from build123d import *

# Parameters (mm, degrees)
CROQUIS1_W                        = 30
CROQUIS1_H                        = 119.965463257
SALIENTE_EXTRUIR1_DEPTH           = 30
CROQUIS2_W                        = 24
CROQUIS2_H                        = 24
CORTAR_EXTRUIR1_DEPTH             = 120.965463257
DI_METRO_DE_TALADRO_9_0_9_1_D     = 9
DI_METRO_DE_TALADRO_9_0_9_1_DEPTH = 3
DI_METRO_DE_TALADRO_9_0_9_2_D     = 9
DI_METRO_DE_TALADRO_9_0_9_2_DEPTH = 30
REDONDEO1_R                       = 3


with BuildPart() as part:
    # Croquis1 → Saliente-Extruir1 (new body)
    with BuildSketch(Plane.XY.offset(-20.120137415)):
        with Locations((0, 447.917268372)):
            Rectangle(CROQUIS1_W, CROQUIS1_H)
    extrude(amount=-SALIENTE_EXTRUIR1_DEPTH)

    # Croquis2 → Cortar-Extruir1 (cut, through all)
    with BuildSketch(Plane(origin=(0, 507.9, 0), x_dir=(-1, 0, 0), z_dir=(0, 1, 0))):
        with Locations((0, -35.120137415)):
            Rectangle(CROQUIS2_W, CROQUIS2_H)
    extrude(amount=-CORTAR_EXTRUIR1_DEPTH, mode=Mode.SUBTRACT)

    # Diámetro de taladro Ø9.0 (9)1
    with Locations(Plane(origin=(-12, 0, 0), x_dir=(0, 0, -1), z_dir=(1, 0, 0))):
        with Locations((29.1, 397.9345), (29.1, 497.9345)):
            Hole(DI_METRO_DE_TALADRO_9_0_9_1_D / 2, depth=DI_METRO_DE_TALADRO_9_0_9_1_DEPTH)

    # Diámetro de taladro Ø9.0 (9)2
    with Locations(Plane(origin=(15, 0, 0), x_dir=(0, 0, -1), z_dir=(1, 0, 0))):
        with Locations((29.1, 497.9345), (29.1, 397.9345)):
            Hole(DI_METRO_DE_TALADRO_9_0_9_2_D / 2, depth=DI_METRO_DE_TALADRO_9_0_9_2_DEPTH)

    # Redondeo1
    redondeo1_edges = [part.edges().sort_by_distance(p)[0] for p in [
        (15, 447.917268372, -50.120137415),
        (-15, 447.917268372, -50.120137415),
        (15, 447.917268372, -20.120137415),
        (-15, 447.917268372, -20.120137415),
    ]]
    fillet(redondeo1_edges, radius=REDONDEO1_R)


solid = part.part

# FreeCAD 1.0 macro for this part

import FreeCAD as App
import Part
import Sketcher
from FreeCAD import Vector
Q = App.Units.Quantity


def edges_at(feature, points):
    """Names of the edges that pass closest to the given points."""
    edges = feature.Shape.Edges
    near = lambda p: min(range(len(edges)), key=lambda i: edges[i].distToShape(Part.Vertex(*p))[0])
    return sorted({f"Edge{near(p) + 1}" for p in points})

doc = App.newDocument("Part")
body = doc.addObject("PartDesign::Body", "Body")

# Sketch on XY plane
sketch1 = doc.addObject("Sketcher::SketchObject", "Sketch")
body.addObject(sketch1)
sketch1.AttachmentSupport = (doc.XY_Plane, [""])
sketch1.MapMode = "FlatFace"
sketch1.AttachmentOffset = App.Placement(Vector(0, 0, -20.120137), App.Rotation())
sketch1.addGeometry(Part.LineSegment(Vector(-15, 507.9, 0), Vector(-15, 387.934537, 0)), False)
sketch1.addGeometry(Part.LineSegment(Vector(-15, 387.934537, 0), Vector(15, 387.934537, 0)), False)
sketch1.addGeometry(Part.LineSegment(Vector(15, 387.934537, 0), Vector(15, 507.9, 0)), False)
sketch1.addGeometry(Part.LineSegment(Vector(15, 507.9, 0), Vector(-15, 507.9, 0)), False)
sketch1.addConstraint(Sketcher.Constraint("Coincident", 0, 2, 1, 1))
sketch1.addConstraint(Sketcher.Constraint("Coincident", 1, 2, 2, 1))
sketch1.addConstraint(Sketcher.Constraint("Coincident", 2, 2, 3, 1))
sketch1.addConstraint(Sketcher.Constraint("Coincident", 3, 2, 0, 1))
sketch1.addConstraint(Sketcher.Constraint("Vertical", 0))
sketch1.addConstraint(Sketcher.Constraint("Horizontal", 1))
sketch1.addConstraint(Sketcher.Constraint("Vertical", 2))
sketch1.addConstraint(Sketcher.Constraint("Horizontal", 3))
sketch1.addConstraint(Sketcher.Constraint("DistanceX", 1, 1, 1, 2, Q("30 mm")))
sketch1.addConstraint(Sketcher.Constraint("DistanceX", 0, 2, -1, 1, Q("15 mm")))
sketch1.addConstraint(Sketcher.Constraint("DistanceY", -1, 1, 2, 2, Q("507.9 mm")))
sketch1.addConstraint(Sketcher.Constraint("DistanceY", 0, 2, 0, 1, Q("119.965463 mm")))
pad1 = doc.addObject("PartDesign::Pad", "Pad")
body.addObject(pad1)
pad1.Profile = sketch1
pad1.Length = 30
pad1.Reversed = True

# Sketch on XZ plane
sketch2 = doc.addObject("Sketcher::SketchObject", "Sketch001")
body.addObject(sketch2)
sketch2.AttachmentSupport = (doc.XZ_Plane, [""])
sketch2.MapMode = "FlatFace"
sketch2.AttachmentOffset = App.Placement(Vector(0, 0, -507.9), App.Rotation())
sketch2.addGeometry(Part.LineSegment(Vector(12, -23.120137, 0), Vector(12, -47.120137, 0)), False)
sketch2.addGeometry(Part.LineSegment(Vector(12, -47.120137, 0), Vector(-12, -47.120137, 0)), False)
sketch2.addGeometry(Part.LineSegment(Vector(-12, -47.120137, 0), Vector(-12, -23.120137, 0)), False)
sketch2.addGeometry(Part.LineSegment(Vector(-12, -23.120137, 0), Vector(12, -23.120137, 0)), False)
sketch2.addConstraint(Sketcher.Constraint("Coincident", 0, 2, 1, 1))
sketch2.addConstraint(Sketcher.Constraint("Coincident", 1, 2, 2, 1))
sketch2.addConstraint(Sketcher.Constraint("Coincident", 2, 2, 3, 1))
sketch2.addConstraint(Sketcher.Constraint("Coincident", 3, 2, 0, 1))
sketch2.addConstraint(Sketcher.Constraint("Vertical", 0))
sketch2.addConstraint(Sketcher.Constraint("Horizontal", 1))
sketch2.addConstraint(Sketcher.Constraint("Vertical", 2))
sketch2.addConstraint(Sketcher.Constraint("Horizontal", 3))
sketch2.addConstraint(Sketcher.Constraint("Equal", 3, 0))
sketch2.addConstraint(Sketcher.Constraint("DistanceX", 1, 2, 1, 1, Q("24 mm")))
sketch2.addConstraint(Sketcher.Constraint("DistanceX", -1, 1, 0, 2, Q("12 mm")))
sketch2.addConstraint(Sketcher.Constraint("DistanceY", 0, 2, -1, 1, Q("47.120137 mm")))
pocket1 = doc.addObject("PartDesign::Pocket", "Pocket")
body.addObject(pocket1)
pocket1.Profile = sketch2
pocket1.Type = "ThroughAll"
pocket1.Reversed = True

# Sketch on YZ plane
sketch3 = doc.addObject("Sketcher::SketchObject", "Sketch002")
body.addObject(sketch3)
sketch3.AttachmentSupport = (doc.YZ_Plane, [""])
sketch3.MapMode = "FlatFace"
sketch3.AttachmentOffset = App.Placement(Vector(0, 0, -12), App.Rotation())
sketch3.addGeometry(Part.Circle(Vector(397.9345, -29.1, 0), Vector(0, 0, 1), 4.5), False)
sketch3.addGeometry(Part.Circle(Vector(497.9345, -29.1, 0), Vector(0, 0, 1), 4.5), False)
sketch3.addConstraint(Sketcher.Constraint("Equal", 0, 1))
sketch3.addConstraint(Sketcher.Constraint("Horizontal", 0, 3, 1, 3))
sketch3.addConstraint(Sketcher.Constraint("Diameter", 0, Q("9 mm")))
sketch3.addConstraint(Sketcher.Constraint("DistanceX", 0, 3, 1, 3, Q("100 mm")))
sketch3.addConstraint(Sketcher.Constraint("DistanceY", 0, 3, -1, 1, Q("29.1 mm")))
sketch3.addConstraint(Sketcher.Constraint("DistanceX", -1, 1, 0, 3, Q("397.9345 mm")))
doc.recompute()
hole = doc.addObject("PartDesign::Hole", "Hole")
body.addObject(hole)
hole.Profile = sketch3
hole.ThreadType = "None"
hole.Diameter = 9
hole.DepthType = "Dimension"
hole.Depth = 3
hole.DrillPoint = "Flat"

# Sketch on YZ plane
sketch4 = doc.addObject("Sketcher::SketchObject", "Sketch003")
body.addObject(sketch4)
sketch4.AttachmentSupport = (doc.YZ_Plane, [""])
sketch4.MapMode = "FlatFace"
sketch4.AttachmentOffset = App.Placement(Vector(0, 0, 15), App.Rotation())
sketch4.addGeometry(Part.Circle(Vector(497.9345, -29.1, 0), Vector(0, 0, 1), 4.5), False)
sketch4.addGeometry(Part.Circle(Vector(397.9345, -29.1, 0), Vector(0, 0, 1), 4.5), False)
sketch4.addConstraint(Sketcher.Constraint("Equal", 0, 1))
sketch4.addConstraint(Sketcher.Constraint("Horizontal", 0, 3, 1, 3))
sketch4.addConstraint(Sketcher.Constraint("Diameter", 0, Q("9 mm")))
sketch4.addConstraint(Sketcher.Constraint("DistanceX", 1, 3, 0, 3, Q("100 mm")))
sketch4.addConstraint(Sketcher.Constraint("DistanceY", 0, 3, -1, 1, Q("29.1 mm")))
sketch4.addConstraint(Sketcher.Constraint("DistanceX", -1, 1, 0, 3, Q("497.9345 mm")))
doc.recompute()
hole2 = doc.addObject("PartDesign::Hole", "Hole001")
body.addObject(hole2)
hole2.Profile = sketch4
hole2.ThreadType = "None"
hole2.Diameter = 9
hole2.DepthType = "Dimension"
hole2.Depth = 30
hole2.DrillPoint = "Flat"
doc.recompute()

fillet = doc.addObject("PartDesign::Fillet", "Fillet")
body.addObject(fillet)
fillet.Base = (hole2, edges_at(hole2, [
    (15, 447.917, -50.12),
    (-15, 447.917, -50.12),
    (15, 447.917, -20.12),
    (-15, 447.917, -20.12),
]))
fillet.Radius = 3

doc.recompute()
